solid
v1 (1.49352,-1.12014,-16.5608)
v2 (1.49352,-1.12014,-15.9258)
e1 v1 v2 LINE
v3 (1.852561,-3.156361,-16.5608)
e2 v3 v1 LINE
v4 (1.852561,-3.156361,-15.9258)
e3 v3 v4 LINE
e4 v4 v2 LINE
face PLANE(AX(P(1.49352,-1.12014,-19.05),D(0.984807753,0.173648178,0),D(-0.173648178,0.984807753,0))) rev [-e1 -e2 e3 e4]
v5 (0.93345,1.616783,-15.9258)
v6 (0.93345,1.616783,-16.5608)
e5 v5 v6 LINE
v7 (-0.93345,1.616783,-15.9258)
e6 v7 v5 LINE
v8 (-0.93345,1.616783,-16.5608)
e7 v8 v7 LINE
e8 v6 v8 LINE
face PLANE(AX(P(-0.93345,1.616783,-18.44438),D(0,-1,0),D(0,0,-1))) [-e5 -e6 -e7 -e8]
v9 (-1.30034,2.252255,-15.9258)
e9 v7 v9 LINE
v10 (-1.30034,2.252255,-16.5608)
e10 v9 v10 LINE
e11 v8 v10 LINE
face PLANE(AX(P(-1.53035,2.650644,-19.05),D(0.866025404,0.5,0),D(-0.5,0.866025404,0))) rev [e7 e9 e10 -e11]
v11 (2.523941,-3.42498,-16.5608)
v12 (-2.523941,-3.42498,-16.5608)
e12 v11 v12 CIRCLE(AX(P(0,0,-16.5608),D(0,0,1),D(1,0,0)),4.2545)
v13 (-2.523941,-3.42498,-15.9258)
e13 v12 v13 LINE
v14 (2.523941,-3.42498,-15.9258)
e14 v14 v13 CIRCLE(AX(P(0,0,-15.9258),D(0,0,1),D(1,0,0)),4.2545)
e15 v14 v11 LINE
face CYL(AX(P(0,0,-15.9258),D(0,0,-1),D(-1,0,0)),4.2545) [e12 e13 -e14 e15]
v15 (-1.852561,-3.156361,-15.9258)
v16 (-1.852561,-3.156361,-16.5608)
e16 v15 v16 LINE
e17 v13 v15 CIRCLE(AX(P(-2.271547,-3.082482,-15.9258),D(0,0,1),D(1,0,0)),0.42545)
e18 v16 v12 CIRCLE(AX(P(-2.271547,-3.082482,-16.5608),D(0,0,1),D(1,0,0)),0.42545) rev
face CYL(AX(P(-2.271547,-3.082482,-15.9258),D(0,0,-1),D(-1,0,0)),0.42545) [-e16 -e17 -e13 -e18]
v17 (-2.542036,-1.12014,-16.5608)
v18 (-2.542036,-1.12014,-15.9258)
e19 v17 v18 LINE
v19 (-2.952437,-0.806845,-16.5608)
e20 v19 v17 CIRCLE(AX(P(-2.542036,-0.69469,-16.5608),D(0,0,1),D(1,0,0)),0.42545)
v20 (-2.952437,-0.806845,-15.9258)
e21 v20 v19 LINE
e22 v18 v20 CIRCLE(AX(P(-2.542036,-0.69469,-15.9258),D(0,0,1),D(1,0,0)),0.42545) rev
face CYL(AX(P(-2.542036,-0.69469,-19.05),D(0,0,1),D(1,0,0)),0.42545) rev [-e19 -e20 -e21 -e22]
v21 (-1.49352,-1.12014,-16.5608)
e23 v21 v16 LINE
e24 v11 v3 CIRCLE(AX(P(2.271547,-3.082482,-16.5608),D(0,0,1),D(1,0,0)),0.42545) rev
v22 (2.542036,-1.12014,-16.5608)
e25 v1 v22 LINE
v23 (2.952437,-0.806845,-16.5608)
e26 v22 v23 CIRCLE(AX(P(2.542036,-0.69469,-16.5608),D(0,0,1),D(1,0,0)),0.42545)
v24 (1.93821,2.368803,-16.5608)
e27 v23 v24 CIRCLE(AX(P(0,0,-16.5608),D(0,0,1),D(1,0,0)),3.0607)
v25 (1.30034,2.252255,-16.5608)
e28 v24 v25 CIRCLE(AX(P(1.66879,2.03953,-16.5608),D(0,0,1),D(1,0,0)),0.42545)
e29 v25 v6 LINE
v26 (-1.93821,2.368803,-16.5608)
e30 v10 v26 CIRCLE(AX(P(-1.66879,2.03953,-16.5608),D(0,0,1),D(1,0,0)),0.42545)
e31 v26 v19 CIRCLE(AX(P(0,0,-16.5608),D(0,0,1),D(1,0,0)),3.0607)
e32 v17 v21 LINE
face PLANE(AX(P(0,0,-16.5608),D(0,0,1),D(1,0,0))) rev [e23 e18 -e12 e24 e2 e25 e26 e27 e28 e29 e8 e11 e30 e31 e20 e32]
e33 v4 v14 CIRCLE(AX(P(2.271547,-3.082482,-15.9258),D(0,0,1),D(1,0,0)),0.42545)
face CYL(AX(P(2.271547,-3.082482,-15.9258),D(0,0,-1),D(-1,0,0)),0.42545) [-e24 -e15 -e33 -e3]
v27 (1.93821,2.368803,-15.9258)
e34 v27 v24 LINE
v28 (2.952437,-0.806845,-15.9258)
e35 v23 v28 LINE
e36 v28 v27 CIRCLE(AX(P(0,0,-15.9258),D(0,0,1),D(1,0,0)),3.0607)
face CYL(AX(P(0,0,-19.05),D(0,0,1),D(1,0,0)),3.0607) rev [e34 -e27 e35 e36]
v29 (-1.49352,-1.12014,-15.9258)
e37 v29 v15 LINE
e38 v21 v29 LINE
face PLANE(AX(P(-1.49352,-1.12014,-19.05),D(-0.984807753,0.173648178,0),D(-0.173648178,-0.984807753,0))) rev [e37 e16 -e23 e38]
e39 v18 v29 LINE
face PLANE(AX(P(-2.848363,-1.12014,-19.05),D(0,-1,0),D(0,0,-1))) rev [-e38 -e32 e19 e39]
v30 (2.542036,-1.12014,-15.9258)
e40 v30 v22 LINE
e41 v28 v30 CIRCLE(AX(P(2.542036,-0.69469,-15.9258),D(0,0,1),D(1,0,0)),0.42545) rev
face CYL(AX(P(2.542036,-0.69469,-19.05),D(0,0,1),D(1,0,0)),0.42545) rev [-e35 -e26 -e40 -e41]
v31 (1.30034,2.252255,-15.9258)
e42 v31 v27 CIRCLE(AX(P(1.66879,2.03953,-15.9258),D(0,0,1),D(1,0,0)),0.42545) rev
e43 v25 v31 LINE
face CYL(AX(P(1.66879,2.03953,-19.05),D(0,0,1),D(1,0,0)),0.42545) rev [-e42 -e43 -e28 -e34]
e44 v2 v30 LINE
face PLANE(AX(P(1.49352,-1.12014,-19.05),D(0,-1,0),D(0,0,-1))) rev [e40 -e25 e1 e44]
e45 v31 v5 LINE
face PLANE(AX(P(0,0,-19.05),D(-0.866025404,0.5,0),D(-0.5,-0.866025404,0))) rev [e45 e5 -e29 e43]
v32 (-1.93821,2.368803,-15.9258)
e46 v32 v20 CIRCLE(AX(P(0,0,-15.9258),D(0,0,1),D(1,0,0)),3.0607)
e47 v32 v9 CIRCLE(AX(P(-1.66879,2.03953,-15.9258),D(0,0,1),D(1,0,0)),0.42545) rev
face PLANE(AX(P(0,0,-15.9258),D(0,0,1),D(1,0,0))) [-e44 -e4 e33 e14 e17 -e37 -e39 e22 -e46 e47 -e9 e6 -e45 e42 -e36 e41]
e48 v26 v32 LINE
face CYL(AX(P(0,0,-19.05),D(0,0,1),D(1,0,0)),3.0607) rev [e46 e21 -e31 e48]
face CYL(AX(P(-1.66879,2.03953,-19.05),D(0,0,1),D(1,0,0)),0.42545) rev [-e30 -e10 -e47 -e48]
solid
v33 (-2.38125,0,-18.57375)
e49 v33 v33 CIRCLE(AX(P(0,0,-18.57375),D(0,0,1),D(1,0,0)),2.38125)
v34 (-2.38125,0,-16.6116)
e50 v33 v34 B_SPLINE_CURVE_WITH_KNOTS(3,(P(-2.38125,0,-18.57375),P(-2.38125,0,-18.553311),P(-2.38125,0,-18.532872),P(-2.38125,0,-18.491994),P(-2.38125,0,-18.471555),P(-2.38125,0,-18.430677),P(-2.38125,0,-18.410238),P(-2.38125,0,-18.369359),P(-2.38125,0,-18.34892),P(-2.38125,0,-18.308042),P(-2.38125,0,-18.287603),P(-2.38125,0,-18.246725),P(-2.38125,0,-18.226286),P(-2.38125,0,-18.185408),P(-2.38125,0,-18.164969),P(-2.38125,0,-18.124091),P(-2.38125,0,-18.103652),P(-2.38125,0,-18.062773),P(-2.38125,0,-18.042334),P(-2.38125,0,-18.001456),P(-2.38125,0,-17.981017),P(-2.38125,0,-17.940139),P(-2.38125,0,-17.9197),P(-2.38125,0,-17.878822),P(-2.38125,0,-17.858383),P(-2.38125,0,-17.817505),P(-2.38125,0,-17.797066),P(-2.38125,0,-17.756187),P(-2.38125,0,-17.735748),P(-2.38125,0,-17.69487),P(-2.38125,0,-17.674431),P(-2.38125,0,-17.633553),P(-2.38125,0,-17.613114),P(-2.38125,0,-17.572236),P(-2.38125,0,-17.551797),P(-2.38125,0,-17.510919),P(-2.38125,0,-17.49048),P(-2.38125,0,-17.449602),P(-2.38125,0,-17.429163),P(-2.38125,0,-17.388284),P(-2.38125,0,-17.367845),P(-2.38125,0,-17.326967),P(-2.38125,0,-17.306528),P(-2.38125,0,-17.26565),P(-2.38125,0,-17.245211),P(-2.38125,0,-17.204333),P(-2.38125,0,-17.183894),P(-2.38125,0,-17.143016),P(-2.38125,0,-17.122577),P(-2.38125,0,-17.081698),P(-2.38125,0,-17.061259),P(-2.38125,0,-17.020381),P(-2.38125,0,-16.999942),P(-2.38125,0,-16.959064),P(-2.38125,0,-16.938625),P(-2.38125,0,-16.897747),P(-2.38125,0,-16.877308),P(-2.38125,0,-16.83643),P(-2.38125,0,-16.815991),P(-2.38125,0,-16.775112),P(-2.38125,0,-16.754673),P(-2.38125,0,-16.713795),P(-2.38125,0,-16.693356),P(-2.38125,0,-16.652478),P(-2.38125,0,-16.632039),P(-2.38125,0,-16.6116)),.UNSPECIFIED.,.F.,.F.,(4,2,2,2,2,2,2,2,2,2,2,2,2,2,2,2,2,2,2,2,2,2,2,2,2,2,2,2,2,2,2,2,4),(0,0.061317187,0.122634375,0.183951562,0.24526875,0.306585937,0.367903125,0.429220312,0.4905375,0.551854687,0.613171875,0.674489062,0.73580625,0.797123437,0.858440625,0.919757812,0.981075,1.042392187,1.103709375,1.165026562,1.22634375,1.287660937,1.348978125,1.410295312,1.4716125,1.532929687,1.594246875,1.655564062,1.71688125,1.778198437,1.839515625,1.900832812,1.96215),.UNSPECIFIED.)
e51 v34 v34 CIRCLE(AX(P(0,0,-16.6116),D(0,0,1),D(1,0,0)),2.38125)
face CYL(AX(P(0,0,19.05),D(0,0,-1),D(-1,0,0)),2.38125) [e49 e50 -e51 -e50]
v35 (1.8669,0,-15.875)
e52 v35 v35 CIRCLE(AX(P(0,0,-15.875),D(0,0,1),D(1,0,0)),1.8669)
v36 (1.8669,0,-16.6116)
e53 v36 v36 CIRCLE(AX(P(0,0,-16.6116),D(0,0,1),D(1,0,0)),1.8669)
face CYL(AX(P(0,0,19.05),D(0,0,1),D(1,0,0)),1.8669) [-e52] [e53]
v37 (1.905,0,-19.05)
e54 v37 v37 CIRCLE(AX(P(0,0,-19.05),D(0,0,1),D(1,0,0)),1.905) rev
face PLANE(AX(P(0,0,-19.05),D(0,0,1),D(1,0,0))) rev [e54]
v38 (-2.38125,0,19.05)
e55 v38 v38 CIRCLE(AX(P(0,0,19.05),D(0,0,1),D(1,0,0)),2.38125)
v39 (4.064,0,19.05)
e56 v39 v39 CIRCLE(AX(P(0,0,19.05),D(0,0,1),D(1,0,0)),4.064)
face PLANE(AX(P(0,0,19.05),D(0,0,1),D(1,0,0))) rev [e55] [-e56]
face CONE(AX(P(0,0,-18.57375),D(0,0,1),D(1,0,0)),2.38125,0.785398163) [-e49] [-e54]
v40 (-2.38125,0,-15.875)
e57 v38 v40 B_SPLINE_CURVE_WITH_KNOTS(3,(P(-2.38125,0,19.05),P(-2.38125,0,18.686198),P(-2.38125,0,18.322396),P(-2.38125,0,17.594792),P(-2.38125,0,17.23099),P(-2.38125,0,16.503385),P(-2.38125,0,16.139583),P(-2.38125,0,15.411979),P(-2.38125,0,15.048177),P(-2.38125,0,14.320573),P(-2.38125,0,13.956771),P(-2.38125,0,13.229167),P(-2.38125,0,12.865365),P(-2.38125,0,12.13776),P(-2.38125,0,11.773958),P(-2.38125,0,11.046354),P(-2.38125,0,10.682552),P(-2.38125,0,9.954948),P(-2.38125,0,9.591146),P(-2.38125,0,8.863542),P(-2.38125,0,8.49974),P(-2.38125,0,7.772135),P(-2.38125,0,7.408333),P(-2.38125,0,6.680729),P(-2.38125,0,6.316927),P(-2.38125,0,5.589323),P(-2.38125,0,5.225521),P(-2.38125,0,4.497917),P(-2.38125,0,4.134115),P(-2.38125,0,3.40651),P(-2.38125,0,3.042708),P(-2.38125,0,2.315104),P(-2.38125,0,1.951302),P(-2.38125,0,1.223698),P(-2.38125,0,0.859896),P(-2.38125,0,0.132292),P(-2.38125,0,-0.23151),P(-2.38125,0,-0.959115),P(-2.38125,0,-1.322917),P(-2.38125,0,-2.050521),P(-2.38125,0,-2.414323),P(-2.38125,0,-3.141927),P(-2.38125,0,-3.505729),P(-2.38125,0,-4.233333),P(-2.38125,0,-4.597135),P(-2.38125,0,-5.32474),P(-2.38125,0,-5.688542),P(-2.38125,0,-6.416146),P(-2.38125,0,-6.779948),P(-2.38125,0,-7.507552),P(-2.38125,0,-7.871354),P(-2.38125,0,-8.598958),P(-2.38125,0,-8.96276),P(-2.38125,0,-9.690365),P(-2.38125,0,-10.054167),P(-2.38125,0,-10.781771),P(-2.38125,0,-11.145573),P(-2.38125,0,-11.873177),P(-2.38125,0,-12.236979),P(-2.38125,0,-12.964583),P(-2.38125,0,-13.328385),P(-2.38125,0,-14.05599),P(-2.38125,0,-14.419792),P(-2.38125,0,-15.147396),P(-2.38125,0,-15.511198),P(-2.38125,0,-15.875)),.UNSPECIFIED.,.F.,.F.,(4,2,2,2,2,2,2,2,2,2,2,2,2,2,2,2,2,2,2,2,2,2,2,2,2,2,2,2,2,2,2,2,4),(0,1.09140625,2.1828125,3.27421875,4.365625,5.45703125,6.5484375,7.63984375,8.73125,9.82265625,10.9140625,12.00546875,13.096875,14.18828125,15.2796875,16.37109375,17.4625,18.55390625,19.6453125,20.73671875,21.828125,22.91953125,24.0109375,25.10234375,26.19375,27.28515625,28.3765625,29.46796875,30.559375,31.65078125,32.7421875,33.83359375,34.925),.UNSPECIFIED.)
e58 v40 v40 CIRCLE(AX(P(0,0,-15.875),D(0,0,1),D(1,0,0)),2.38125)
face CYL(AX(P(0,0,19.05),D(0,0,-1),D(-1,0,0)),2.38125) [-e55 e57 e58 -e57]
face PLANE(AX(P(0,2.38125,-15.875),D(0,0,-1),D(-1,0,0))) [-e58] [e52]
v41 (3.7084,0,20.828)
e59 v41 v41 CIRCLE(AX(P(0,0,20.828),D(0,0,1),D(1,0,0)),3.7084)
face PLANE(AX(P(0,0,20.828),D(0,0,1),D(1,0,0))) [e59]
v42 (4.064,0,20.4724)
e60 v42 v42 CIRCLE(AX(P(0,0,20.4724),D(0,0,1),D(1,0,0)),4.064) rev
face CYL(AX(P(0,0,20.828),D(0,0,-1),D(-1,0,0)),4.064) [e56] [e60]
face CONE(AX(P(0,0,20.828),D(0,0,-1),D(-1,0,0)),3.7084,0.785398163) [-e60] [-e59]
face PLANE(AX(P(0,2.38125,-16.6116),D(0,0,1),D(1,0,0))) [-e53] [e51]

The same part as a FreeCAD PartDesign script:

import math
import FreeCAD as App
import Part
import Sketcher
from FreeCAD import Vector
Q = App.Units.Quantity


def edges_at(feature, points):
    """Names of the edges that pass closest to the given points."""
    edges = feature.Shape.Edges
    near = lambda p: min(range(len(edges)), key=lambda i: edges[i].distToShape(Part.Vertex(*p))[0])
    return sorted({f"Edge{near(p) + 1}" for p in points})

doc = App.newDocument("Part")
params = doc.addObject("Spreadsheet::Sheet", "Params")
for row, (alias, value) in enumerate([
    ("sketch1_diameter", "0.1875 in"),
    ("pad1_length", "1.5 in"),
    ("sketch2_height", "0.029 in"),
    ("groove_angle", "360 deg"),
    ("sketch3_diameter", "0.32 in"),
    ("pad2_length", "0.07 in"),
    ("chamfer_size", "0.014 in"),
    ("chamfer2_size", "0.47625 mm"),
    ("sketch4_diameter", "0.335 in"),
    ("sketch4_diameter2", "0.147 in"),
    ("pad3_length", "0.025 in"),
    ("pad4_length", "0.025 in"),
    ("fillet_radius", "0.42545 mm"),
], start=1):
    params.set(f"A{row}", alias)
    params.set(f"B{row}", "=" + value)
    params.setAlias(f"B{row}", alias)

body = doc.addObject("PartDesign::Body", "Body")

# Sketch on XY plane
sketch1 = doc.addObject("Sketcher::SketchObject", "Sketch")
body.addObject(sketch1)
sketch1.AttachmentSupport = (doc.XY_Plane, [""])
sketch1.MapMode = "FlatFace"
sketch1.addGeometry(Part.Circle(Vector(0, 0, 0), Vector(0, 0, 1), 2.4), False)
sketch1.addConstraint([
    Sketcher.Constraint("Coincident", 0, 3, -1, 1),
    Sketcher.Constraint("Diameter", 0, Q("0.1875 in")),
])
sketch1.setExpression("Constraints[1]", "Params.sketch1_diameter")
pad1 = doc.addObject("PartDesign::Pad", "Pad")
body.addObject(pad1)
pad1.Profile = sketch1
pad1.setExpression("Length", "Params.pad1_length")
pad1.Midplane = True

# Sketch on YZ plane
sketch2 = doc.addObject("Sketcher::SketchObject", "Sketch001")
body.addObject(sketch2)
sketch2.AttachmentSupport = (doc.YZ_Plane, [""])
sketch2.MapMode = "FlatFace"
sketch2.addGeometry([
    Part.LineSegment(Vector(2.4, -15.9, 0), Vector(1.9, -15.9, 0)),
    Part.LineSegment(Vector(1.9, -15.9, 0), Vector(1.9, -16.6, 0)),
    Part.LineSegment(Vector(1.9, -16.6, 0), Vector(2.4, -16.6, 0)),
    Part.LineSegment(Vector(2.4, -16.6, 0), Vector(2.4, -15.9, 0)),
], False)
sketch2.addConstraint([
    Sketcher.Constraint("Coincident", 0, 2, 1, 1),
    Sketcher.Constraint("Coincident", 1, 2, 2, 1),
    Sketcher.Constraint("Coincident", 2, 2, 3, 1),
    Sketcher.Constraint("Coincident", 3, 2, 0, 1),
    Sketcher.Constraint("Horizontal", 0),
    Sketcher.Constraint("Vertical", 1),
    Sketcher.Constraint("Horizontal", 2),
    Sketcher.Constraint("Vertical", 3),
    Sketcher.Constraint("DistanceY", 1, 2, 1, 1, Q("0.029 in")),
    Sketcher.Constraint("DistanceY", 0, 2, -1, 1, Q("0.625 in")),
    Sketcher.Constraint("DistanceX", -1, 1, 2, 2, Q("0.09375 in")),
    Sketcher.Constraint("DistanceX", -1, 1, 0, 2, Q("0.0735 in")),
])
sketch2.setExpression("Constraints[8]", "Params.sketch2_height")
groove = doc.addObject("PartDesign::Groove", "Groove")
body.addObject(groove)
groove.Profile = sketch2
groove.ReferenceAxis = (sketch2, ["V_Axis"])
groove.setExpression("Angle", "Params.groove_angle")

# Sketch on XY plane
sketch3 = doc.addObject("Sketcher::SketchObject", "Sketch002")
body.addObject(sketch3)
sketch3.AttachmentSupport = (doc.XY_Plane, [""])
sketch3.MapMode = "FlatFace"
sketch3.AttachmentOffset = App.Placement(Vector(0, 0, 0.75 * 25.4), App.Rotation())
sketch3.addGeometry(Part.Circle(Vector(0, 0, 0), Vector(0, 0, 1), 4.1), False)
sketch3.addConstraint([
    Sketcher.Constraint("Coincident", 0, 3, -1, 1),
    Sketcher.Constraint("Diameter", 0, Q("0.32 in")),
])
sketch3.setExpression("Constraints[1]", "Params.sketch3_diameter")
pad2 = doc.addObject("PartDesign::Pad", "Pad001")
body.addObject(pad2)
pad2.Profile = sketch3
pad2.setExpression("Length", "Params.pad2_length")
doc.recompute()

chamfer = doc.addObject("PartDesign::Chamfer", "Chamfer")
body.addObject(chamfer)
chamfer.Base = (pad2, edges_at(pad2, [(-4.064, 0, 20.828)]))
chamfer.setExpression("Size", "Params.chamfer_size")
doc.recompute()

chamfer2 = doc.addObject("PartDesign::Chamfer", "Chamfer001")
body.addObject(chamfer2)
chamfer2.Base = (chamfer, edges_at(chamfer, [(2.381, 0, -19.05)]))
chamfer2.setExpression("Size", "Params.chamfer2_size")
body2 = doc.addObject("PartDesign::Body", "Body001")

# Sketch on XY plane
sketch4 = doc.addObject("Sketcher::SketchObject", "Sketch003")
body2.addObject(sketch4)
sketch4.AttachmentSupport = (doc.getObject("XY_Plane001"), [""])
sketch4.MapMode = "FlatFace"
sketch4.AttachmentOffset = App.Placement(Vector(0, 0, -0.6395 * 25.4), App.Rotation())
sketch4.addGeometry([
    Part.Circle(Vector(0, 0, 0), Vector(0, 0, 1), 4.3),
    Part.Circle(Vector(0, 0, 0), Vector(0, 0, 1), 1.9),
], False)
sketch4.addConstraint([
    Sketcher.Constraint("Coincident", 0, 3, -1, 1),
    Sketcher.Constraint("Coincident", 1, 3, -1, 1),
    Sketcher.Constraint("Diameter", 0, Q("0.335 in")),
    Sketcher.Constraint("Diameter", 1, Q("0.147 in")),
])
sketch4.setExpression("Constraints[2]", "Params.sketch4_diameter")
sketch4.setExpression("Constraints[3]", "Params.sketch4_diameter2")
pad3 = doc.addObject("PartDesign::Pad", "Pad002")
body2.addObject(pad3)
pad3.Profile = sketch4
pad3.setExpression("Length", "Params.pad3_length")
pad3.Midplane = True

# Sketch on XY plane
sketch5 = doc.addObject("Sketcher::SketchObject", "Sketch004")
body2.addObject(sketch5)
sketch5.AttachmentSupport = (doc.getObject("XY_Plane001"), [""])
sketch5.MapMode = "FlatFace"
sketch5.addGeometry([
    Part.LineSegment(Vector(0, 0, 0), Vector(-1.5, 2.7, 0)),  # 0
    Part.ArcOfCircle(Part.Circle(Vector(0, 0, 0), Vector(0, 0, 1), 3.1), math.radians(120), math.radians(201)),  # 1
    Part.LineSegment(Vector(-2.8, -1.1, 0), Vector(-1.5, -1.1, 0)),  # 2
    Part.LineSegment(Vector(-1.5, -1.1, 0), Vector(-2, -3.8, 0)),  # 3
    Part.ArcOfCircle(Part.Circle(Vector(0, 0, 0), Vector(0, 0, 1), 4.3), math.radians(-117), math.radians(-63)),  # 4
    Part.LineSegment(Vector(2, -3.8, 0), Vector(1.5, -1.1, 0)),  # 5
    Part.LineSegment(Vector(1.5, -1.1, 0), Vector(2.8, -1.1, 0)),  # 6
    Part.ArcOfCircle(Part.Circle(Vector(0, 0, 0), Vector(0, 0, 1), 3.1), math.radians(-21), math.radians(60)),  # 7
    Part.LineSegment(Vector(1.5, 2.7, 0), Vector(0, 0, 0)),  # 8
], False)
sketch5.addConstraint([
    Sketcher.Constraint("Coincident", 0, 2, 1, 1),
    Sketcher.Constraint("Coincident", 1, 2, 2, 1),
    Sketcher.Constraint("Coincident", 2, 2, 3, 1),
    Sketcher.Constraint("Coincident", 3, 2, 4, 1),
    Sketcher.Constraint("Coincident", 4, 2, 5, 1),
    Sketcher.Constraint("Coincident", 5, 2, 6, 1),
    Sketcher.Constraint("Coincident", 6, 2, 7, 1),
    Sketcher.Constraint("Coincident", 7, 2, 8, 1),
    Sketcher.Constraint("Coincident", 8, 2, 0, 1),
    Sketcher.Constraint("Horizontal", 2),
    Sketcher.Constraint("Horizontal", 6),
    Sketcher.Constraint("Coincident", 1, 3, -1, 1),
    Sketcher.Constraint("Coincident", 4, 3, -1, 1),
    Sketcher.Constraint("Coincident", 7, 3, -1, 1),
    Sketcher.Constraint("Coincident", 8, 2, -1, 1),
    Sketcher.Constraint("Equal", 1, 7),
    Sketcher.Constraint("Symmetric", 2, 2, 5, 2, -2),
    Sketcher.Constraint("Horizontal", 3, 2, 4, 2),
    Sketcher.Constraint("Horizontal", 0, 2, 7, 2),
    Sketcher.Constraint("Angle", 0, Q("120 deg")),
    Sketcher.Constraint("Angle", 3, Q("-100 deg")),
    Sketcher.Constraint("Radius", 1, Q("0.1205 in")),
    Sketcher.Constraint("Radius", 4, Q("0.1675 in")),
    Sketcher.Constraint("DistanceY", 1, 2, -1, 1, Q("0.0441 in")),
    Sketcher.Constraint("DistanceX", 2, 2, -1, 1, Q("0.0588 in")),
])
pocket1 = doc.addObject("PartDesign::Pocket", "Pocket")
body2.addObject(pocket1)
pocket1.Profile = sketch5
pocket1.Type = "ThroughAll"

# Sketch on XY plane
sketch6 = doc.addObject("Sketcher::SketchObject", "Sketch005")
body2.addObject(sketch6)
sketch6.AttachmentSupport = (doc.getObject("XY_Plane001"), [""])
sketch6.MapMode = "FlatFace"
sketch6.AttachmentOffset = App.Placement(Vector(0, 0, -0.627 * 25.4), App.Rotation())
sketch6.addGeometry([
    Part.LineSegment(Vector(-0.9, 1.6, 0), Vector(0.9, 1.6, 0)),
    Part.ArcOfCircle(Part.Circle(Vector(0, 0, 0), Vector(0, 0, 1), 1.9), math.radians(60), math.radians(120)),
], False)
sketch6.addConstraint([
    Sketcher.Constraint("Coincident", 0, 1, 1, 2),
    Sketcher.Constraint("Coincident", 1, 1, 0, 2),
    Sketcher.Constraint("Horizontal", 0),
    Sketcher.Constraint("Coincident", 1, 3, -1, 1),
    Sketcher.Constraint("Radius", 1, Q("0.0735 in")),
    Sketcher.Constraint("DistanceX", 0, 1, 0, 2, Q("0.0735 in")),
])
pad4 = doc.addObject("PartDesign::Pad", "Pad003")
body2.addObject(pad4)
pad4.Profile = sketch6
pad4.setExpression("Length", "Params.pad4_length")
pad4.Reversed = True
doc.recompute()

fillet = doc.addObject("PartDesign::Fillet", "Fillet")
body2.addObject(fillet)
fillet.Base = (pad4, edges_at(pad4, [
    (1.53, 2.651, -16.243),
    (1.962, -3.775, -16.243),
    (-2.848, -1.12, -16.243),
    (2.848, -1.12, -16.243),
    (-1.962, -3.775, -16.243),
    (-1.53, 2.651, -16.243),
]))
fillet.setExpression("Radius", "Params.fillet_radius")

doc.recompute()
